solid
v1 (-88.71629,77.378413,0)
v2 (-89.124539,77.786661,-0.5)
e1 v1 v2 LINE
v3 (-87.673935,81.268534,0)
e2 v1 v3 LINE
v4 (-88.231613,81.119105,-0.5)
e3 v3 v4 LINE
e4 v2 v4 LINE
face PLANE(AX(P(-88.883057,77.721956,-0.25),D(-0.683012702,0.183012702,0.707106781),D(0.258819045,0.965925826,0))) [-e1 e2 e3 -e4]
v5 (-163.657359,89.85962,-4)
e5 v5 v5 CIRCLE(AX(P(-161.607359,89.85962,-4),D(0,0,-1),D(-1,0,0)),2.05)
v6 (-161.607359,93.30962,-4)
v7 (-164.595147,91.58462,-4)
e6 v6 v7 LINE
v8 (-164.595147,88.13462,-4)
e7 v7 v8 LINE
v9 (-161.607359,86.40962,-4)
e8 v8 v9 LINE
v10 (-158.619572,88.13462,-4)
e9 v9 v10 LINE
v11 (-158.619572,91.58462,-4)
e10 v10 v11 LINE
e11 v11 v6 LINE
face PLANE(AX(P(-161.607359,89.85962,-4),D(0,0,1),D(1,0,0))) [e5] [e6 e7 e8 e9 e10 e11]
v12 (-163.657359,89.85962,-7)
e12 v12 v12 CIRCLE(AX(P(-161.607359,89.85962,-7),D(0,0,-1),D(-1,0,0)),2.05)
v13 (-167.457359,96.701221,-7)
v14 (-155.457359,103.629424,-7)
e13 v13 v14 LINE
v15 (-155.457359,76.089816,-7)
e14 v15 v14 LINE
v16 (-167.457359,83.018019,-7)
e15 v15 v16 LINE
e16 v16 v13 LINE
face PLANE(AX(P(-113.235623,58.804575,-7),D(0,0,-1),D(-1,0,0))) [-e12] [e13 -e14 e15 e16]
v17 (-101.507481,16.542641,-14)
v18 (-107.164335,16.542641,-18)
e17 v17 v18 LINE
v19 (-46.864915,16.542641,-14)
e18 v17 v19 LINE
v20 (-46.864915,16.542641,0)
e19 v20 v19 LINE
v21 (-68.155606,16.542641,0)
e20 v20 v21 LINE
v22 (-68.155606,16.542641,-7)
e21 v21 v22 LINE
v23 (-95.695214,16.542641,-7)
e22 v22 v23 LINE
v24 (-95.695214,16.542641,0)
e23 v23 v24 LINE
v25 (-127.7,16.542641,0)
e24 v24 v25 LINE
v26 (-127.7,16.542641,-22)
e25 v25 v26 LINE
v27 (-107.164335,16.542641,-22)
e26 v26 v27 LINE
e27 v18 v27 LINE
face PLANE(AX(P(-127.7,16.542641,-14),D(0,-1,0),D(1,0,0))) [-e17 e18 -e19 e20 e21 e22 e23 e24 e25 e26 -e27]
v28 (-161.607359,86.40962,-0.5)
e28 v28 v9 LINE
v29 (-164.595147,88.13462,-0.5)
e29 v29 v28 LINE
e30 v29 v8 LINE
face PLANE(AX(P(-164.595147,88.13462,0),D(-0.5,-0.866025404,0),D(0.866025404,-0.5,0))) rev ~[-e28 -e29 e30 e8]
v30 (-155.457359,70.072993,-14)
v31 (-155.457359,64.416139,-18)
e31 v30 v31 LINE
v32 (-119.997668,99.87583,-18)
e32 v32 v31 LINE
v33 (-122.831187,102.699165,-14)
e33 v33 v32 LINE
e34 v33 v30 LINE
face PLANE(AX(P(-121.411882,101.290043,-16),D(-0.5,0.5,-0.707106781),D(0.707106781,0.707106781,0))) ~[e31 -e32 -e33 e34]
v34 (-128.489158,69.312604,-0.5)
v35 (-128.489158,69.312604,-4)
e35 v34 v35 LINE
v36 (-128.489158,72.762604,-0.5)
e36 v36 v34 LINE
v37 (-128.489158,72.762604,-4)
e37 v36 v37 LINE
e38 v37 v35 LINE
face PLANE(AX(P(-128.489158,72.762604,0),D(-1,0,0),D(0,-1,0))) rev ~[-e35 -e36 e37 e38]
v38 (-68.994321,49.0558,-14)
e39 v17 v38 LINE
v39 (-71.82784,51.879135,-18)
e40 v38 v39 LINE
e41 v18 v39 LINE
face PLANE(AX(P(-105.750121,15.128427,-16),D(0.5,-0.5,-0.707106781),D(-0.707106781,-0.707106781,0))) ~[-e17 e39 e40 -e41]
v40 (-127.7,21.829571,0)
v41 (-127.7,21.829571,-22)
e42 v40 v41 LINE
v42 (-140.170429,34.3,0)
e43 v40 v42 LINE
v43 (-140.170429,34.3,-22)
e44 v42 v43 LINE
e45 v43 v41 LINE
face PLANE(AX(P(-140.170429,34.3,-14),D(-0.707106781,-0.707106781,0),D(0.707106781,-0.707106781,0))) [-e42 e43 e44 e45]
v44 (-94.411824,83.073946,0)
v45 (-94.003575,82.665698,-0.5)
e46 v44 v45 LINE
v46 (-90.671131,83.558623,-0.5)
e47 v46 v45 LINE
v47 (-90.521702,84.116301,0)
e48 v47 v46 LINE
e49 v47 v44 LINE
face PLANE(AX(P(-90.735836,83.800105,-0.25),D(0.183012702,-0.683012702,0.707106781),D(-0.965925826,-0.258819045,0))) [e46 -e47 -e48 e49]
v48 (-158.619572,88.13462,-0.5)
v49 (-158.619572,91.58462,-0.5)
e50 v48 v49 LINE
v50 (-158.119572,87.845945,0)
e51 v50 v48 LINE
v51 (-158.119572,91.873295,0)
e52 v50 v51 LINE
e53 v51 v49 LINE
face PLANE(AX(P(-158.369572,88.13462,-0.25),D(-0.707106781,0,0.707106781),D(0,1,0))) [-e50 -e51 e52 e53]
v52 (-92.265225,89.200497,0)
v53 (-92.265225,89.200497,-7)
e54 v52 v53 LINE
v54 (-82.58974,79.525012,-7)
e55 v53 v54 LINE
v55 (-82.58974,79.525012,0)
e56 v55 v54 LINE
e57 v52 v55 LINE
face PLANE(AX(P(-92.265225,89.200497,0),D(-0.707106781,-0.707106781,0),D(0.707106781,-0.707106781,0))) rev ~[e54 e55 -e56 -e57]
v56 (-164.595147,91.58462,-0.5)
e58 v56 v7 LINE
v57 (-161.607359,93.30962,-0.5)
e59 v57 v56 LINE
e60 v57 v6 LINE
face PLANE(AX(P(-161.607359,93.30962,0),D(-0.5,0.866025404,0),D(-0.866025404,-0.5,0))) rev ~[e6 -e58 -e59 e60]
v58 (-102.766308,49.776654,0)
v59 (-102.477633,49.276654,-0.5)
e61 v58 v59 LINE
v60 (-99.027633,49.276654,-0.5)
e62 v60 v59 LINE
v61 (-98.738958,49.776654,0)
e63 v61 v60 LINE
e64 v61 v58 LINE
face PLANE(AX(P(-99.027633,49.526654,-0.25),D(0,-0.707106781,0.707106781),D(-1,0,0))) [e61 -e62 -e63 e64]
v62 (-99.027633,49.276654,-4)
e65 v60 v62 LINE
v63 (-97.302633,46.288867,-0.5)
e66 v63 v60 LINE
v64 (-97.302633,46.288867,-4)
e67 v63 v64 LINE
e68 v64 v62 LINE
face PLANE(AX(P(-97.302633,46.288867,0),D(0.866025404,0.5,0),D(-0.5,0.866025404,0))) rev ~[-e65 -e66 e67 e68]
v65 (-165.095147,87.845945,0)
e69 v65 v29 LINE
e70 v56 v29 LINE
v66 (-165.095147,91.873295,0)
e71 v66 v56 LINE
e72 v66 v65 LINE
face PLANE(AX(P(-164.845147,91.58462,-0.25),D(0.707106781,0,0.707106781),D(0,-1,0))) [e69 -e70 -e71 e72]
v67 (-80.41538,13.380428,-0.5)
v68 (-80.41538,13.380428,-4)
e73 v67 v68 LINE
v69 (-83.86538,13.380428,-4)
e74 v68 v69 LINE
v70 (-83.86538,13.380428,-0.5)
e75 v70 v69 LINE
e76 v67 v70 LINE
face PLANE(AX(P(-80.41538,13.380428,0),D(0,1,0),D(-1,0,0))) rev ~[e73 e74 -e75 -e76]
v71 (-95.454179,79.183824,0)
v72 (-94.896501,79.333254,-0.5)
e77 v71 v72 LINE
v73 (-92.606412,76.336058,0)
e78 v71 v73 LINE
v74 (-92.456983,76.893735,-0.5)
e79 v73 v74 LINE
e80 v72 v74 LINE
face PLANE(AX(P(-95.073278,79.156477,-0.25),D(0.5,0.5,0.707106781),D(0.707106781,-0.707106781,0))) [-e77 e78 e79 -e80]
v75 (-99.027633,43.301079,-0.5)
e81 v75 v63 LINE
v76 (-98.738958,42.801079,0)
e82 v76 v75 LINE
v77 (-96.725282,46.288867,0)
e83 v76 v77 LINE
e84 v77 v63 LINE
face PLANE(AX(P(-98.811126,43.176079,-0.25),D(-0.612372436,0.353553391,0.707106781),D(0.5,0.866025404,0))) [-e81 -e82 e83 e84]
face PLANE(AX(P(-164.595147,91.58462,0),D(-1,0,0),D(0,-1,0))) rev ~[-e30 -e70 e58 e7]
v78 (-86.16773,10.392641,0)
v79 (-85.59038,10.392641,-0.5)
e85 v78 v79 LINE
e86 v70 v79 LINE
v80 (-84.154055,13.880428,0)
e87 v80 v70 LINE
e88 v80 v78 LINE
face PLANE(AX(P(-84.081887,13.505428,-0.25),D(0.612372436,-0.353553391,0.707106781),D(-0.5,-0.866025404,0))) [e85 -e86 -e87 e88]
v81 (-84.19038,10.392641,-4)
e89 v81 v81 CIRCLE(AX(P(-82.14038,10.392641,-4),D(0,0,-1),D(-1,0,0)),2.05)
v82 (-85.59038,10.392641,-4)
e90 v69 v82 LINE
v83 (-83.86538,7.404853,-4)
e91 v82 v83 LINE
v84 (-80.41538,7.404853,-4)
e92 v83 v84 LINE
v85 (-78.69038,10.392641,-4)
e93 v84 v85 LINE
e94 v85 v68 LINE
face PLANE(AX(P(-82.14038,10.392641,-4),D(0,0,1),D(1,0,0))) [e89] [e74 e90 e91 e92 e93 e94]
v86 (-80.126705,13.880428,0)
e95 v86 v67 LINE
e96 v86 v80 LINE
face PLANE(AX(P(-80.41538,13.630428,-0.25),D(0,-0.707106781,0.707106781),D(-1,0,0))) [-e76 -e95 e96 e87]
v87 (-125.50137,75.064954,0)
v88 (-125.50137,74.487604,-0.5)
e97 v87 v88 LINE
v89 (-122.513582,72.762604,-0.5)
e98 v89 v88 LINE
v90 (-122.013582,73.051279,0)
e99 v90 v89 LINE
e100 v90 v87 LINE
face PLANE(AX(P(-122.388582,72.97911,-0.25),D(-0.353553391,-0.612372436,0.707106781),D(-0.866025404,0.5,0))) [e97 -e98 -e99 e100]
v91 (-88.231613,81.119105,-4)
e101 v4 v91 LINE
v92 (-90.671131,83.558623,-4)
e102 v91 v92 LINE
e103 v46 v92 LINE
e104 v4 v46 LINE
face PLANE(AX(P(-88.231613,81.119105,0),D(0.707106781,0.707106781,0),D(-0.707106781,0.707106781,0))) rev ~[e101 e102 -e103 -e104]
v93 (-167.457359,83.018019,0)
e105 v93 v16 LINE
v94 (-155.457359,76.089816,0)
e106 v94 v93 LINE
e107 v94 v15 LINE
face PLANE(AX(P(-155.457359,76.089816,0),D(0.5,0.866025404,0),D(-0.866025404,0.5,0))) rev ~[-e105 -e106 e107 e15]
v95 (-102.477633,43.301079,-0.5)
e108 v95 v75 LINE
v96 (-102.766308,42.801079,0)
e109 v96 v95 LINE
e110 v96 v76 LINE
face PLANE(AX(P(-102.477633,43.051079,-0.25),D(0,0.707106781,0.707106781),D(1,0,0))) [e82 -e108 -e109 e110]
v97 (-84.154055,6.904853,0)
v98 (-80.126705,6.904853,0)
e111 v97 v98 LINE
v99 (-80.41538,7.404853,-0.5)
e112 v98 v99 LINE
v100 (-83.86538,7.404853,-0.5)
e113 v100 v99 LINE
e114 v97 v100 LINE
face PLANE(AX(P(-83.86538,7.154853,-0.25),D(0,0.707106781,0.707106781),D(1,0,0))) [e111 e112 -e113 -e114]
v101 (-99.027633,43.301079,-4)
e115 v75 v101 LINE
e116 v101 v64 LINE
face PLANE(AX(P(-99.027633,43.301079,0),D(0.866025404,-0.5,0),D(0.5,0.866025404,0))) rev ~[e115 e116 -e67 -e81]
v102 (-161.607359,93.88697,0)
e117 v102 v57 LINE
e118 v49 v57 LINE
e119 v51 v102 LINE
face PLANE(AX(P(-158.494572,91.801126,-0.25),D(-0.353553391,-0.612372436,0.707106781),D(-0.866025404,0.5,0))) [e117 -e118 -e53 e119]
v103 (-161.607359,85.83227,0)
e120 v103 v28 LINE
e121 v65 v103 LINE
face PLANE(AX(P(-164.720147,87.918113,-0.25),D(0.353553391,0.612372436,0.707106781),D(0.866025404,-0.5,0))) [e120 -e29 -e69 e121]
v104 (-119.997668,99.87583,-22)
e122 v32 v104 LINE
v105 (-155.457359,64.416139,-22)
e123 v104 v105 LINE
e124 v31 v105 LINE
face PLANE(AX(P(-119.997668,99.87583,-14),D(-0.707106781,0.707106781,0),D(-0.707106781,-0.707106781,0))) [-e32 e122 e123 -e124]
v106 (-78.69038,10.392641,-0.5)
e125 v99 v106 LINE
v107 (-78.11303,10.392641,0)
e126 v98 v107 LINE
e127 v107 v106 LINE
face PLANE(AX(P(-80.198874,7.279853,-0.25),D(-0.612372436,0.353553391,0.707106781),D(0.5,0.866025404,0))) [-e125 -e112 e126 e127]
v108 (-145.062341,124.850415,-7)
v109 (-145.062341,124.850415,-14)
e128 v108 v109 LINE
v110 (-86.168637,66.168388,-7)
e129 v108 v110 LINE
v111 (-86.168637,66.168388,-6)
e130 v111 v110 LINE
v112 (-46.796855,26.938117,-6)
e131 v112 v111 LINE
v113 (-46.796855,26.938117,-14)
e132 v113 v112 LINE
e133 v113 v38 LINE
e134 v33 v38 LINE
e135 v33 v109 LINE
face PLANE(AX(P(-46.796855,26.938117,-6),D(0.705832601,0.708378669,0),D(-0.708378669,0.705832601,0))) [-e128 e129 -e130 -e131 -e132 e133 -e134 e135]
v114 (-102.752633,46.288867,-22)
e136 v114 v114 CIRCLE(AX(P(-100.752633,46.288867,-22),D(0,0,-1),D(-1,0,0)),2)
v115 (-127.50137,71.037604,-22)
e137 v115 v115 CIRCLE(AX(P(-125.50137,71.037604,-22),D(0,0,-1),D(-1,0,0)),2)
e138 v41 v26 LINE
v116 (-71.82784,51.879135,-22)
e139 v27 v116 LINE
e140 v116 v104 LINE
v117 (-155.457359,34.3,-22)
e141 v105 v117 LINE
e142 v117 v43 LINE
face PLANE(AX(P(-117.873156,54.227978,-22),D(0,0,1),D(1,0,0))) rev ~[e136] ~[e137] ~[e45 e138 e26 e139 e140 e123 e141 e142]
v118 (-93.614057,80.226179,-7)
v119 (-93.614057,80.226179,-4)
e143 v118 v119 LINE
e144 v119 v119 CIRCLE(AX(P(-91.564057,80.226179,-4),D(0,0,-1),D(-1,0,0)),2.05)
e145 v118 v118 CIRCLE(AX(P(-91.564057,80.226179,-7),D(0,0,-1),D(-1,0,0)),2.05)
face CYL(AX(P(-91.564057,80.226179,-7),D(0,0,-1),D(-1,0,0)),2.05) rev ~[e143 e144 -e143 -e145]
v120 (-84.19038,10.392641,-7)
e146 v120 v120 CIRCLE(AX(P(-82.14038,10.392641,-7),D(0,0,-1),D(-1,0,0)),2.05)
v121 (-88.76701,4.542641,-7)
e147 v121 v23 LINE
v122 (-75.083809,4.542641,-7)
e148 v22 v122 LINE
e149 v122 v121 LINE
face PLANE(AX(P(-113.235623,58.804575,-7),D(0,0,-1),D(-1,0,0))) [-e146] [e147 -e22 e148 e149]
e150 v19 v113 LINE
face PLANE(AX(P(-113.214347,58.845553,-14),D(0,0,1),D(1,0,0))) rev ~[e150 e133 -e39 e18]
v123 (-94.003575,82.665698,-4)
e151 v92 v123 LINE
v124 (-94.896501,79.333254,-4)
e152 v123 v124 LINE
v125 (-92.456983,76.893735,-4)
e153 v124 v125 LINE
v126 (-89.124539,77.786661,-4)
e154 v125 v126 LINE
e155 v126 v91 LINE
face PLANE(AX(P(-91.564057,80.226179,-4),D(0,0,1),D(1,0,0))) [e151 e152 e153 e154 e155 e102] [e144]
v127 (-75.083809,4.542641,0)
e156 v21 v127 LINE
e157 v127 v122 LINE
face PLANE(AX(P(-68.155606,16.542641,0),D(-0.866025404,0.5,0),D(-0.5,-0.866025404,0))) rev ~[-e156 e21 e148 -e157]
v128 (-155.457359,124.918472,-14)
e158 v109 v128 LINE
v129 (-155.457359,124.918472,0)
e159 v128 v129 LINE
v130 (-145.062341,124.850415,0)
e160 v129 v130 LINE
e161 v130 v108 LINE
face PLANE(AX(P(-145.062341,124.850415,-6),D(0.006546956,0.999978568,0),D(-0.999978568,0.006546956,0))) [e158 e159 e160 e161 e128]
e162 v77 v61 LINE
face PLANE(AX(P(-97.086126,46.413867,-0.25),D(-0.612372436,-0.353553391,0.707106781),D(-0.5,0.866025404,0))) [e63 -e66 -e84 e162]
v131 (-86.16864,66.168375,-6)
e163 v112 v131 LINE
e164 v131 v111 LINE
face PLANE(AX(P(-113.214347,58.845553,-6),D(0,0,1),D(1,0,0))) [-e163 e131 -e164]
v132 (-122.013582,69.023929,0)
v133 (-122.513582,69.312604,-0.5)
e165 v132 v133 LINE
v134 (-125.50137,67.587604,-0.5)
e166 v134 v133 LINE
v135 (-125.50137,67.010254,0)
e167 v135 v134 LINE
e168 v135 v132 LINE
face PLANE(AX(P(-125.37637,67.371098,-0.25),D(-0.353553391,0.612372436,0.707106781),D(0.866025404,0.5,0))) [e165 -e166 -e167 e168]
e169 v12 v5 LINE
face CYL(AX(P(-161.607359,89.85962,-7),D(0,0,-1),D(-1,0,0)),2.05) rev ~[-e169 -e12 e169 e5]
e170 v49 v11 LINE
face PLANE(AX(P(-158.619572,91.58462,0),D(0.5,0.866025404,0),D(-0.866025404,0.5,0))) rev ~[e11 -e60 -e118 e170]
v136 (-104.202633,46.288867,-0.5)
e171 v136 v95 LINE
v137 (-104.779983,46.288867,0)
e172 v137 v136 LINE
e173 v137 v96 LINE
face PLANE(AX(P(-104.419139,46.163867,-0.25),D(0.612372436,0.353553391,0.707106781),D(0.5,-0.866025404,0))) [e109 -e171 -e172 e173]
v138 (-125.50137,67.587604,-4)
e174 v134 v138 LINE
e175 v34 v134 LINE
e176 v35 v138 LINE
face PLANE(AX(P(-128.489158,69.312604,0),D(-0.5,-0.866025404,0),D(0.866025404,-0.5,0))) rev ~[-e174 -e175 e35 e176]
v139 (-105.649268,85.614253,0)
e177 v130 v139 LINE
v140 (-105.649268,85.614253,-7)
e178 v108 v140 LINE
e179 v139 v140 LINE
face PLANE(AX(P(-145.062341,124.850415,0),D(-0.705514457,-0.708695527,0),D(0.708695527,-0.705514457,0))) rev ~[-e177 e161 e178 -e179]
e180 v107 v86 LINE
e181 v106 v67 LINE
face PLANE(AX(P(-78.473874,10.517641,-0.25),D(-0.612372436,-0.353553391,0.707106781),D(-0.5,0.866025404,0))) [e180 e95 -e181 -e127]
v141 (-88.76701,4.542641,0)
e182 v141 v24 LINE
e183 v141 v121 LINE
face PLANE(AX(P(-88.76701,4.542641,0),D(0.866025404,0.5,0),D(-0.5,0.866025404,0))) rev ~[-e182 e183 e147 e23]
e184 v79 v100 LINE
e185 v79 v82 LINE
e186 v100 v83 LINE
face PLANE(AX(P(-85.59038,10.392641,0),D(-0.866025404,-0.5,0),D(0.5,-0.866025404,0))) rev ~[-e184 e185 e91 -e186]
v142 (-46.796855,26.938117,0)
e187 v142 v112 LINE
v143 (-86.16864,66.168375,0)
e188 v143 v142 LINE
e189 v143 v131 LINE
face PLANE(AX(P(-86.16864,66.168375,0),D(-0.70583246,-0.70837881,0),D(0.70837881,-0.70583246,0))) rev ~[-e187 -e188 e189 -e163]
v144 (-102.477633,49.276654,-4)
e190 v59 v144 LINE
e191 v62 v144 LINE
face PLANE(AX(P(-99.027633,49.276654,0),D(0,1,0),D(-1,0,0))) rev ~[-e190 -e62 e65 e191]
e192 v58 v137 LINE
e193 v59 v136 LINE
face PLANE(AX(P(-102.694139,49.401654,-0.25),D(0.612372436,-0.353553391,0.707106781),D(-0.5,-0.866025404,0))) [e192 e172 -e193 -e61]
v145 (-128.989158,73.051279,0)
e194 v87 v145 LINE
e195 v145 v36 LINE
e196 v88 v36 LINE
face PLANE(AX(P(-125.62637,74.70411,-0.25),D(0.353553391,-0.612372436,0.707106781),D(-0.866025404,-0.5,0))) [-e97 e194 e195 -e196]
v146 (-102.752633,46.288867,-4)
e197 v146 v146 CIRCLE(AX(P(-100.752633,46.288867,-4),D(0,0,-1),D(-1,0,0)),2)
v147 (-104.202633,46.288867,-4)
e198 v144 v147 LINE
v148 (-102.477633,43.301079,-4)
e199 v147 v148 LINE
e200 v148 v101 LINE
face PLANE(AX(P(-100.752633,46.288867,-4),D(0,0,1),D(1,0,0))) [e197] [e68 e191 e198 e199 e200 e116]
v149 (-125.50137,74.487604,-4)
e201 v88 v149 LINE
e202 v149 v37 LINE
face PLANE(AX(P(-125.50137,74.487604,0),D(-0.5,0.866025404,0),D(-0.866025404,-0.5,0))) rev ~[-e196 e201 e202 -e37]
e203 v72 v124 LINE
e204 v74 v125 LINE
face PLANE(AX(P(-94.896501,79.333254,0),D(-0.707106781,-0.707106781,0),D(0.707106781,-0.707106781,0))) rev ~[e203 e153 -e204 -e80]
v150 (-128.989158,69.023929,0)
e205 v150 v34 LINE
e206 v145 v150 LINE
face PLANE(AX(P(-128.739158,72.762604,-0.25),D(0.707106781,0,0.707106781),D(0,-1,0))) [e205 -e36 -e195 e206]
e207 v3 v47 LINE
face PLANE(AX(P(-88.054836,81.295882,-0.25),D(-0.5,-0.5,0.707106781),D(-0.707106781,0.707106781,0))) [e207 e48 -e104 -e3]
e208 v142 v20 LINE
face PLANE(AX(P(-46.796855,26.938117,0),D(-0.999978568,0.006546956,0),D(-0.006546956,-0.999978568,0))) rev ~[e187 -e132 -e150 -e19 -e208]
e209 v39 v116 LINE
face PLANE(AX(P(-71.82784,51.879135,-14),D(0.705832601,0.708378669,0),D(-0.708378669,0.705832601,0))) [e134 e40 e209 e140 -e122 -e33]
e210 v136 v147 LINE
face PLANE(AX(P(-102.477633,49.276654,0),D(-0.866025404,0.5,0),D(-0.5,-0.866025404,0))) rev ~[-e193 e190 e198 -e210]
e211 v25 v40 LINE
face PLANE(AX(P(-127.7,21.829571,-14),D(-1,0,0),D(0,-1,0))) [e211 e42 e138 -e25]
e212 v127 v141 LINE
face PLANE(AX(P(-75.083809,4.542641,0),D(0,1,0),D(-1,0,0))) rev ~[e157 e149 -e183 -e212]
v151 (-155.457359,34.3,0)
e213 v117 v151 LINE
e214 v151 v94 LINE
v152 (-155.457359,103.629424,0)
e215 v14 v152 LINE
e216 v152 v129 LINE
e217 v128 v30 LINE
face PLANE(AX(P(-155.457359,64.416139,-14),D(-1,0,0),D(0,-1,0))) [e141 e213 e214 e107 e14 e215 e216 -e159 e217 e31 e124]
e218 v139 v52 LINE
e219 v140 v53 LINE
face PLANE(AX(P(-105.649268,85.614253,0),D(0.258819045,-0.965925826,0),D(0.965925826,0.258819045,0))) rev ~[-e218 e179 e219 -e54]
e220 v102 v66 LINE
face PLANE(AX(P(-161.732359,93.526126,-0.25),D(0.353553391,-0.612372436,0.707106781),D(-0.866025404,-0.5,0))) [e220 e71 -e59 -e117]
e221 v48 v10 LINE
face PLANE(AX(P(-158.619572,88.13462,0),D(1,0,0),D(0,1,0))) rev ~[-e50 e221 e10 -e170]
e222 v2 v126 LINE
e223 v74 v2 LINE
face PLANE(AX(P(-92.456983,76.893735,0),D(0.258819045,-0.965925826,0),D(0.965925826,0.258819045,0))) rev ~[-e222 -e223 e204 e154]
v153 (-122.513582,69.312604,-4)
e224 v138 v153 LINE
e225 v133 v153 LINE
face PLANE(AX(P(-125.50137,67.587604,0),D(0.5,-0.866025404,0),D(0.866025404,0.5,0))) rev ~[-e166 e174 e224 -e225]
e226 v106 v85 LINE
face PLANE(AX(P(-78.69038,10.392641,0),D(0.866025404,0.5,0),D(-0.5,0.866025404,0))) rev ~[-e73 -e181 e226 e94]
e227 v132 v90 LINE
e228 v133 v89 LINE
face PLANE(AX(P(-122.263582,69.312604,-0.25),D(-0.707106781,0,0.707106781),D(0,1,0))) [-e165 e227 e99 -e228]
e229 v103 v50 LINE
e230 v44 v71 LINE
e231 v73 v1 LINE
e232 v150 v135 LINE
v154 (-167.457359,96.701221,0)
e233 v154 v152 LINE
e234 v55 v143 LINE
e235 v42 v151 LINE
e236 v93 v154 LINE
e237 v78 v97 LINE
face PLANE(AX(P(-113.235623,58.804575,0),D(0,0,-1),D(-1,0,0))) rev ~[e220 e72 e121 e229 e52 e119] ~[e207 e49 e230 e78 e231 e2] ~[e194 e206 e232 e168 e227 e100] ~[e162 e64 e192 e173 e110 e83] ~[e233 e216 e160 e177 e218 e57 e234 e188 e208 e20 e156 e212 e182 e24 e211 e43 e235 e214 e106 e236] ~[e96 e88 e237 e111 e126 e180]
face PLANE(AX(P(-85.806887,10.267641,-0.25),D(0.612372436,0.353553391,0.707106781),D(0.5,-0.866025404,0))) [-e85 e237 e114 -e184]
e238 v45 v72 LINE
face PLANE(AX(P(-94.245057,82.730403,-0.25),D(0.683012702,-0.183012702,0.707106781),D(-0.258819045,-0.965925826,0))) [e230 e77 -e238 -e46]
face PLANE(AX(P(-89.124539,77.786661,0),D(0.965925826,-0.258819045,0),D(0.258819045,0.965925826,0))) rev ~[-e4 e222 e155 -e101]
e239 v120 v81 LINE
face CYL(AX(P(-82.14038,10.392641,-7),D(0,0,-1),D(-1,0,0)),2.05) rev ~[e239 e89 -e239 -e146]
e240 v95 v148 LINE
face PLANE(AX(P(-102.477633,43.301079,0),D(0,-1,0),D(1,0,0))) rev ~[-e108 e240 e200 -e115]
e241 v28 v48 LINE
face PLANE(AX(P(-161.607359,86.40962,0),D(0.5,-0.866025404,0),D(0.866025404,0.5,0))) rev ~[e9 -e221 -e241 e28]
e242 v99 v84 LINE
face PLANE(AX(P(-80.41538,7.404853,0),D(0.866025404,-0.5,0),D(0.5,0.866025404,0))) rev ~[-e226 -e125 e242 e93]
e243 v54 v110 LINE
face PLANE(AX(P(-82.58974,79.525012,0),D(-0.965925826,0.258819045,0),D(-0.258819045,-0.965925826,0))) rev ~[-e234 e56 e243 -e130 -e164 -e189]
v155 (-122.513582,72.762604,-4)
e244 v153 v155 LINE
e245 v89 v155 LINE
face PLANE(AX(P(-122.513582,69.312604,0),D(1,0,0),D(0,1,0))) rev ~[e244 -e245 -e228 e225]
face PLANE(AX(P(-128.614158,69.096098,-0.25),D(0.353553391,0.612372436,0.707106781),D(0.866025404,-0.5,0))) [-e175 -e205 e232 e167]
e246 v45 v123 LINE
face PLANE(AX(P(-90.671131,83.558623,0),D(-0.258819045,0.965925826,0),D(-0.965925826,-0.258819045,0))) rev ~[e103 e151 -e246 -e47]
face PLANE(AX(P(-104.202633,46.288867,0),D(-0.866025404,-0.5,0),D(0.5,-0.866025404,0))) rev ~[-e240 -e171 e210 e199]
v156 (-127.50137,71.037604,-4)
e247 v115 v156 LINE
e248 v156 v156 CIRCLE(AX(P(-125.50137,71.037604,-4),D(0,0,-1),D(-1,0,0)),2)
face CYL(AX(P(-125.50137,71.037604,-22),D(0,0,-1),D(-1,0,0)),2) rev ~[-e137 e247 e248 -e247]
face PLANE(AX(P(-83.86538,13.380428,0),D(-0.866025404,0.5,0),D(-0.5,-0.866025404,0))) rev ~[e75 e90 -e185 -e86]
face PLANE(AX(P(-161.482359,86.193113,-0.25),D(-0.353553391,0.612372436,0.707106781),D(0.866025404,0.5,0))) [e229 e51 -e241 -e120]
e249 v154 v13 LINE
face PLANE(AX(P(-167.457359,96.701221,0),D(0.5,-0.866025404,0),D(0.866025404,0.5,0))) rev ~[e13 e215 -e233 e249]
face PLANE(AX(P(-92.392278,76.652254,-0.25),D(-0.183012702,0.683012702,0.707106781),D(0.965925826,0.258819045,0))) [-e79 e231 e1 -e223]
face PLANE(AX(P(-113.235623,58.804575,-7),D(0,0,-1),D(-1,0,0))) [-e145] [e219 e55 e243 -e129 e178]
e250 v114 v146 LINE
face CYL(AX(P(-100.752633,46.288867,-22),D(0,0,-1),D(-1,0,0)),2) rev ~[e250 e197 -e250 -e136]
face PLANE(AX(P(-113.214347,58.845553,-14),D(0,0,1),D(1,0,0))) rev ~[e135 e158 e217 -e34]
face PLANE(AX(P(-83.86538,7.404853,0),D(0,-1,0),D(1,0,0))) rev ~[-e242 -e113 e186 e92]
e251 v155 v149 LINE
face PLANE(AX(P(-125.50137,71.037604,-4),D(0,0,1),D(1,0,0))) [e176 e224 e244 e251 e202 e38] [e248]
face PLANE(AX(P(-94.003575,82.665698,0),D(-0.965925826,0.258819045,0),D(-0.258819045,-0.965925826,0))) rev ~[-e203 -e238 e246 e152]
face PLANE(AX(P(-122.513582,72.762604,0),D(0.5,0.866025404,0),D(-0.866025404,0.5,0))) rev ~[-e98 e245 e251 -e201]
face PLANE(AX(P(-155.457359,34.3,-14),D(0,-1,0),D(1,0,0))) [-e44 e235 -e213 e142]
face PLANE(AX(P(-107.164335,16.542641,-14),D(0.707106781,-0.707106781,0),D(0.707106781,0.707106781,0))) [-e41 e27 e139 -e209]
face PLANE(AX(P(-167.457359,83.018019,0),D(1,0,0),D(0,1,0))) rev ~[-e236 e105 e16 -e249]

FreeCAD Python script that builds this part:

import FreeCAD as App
import Part
import Sketcher

V = App.Vector
Q = App.Units.Quantity


def edges_at(feature, points):
    """Names of the edges that pass closest to the given points."""
    edges = feature.Shape.Edges
    near = lambda p: min(range(len(edges)), key=lambda i: edges[i].distToShape(Part.Vertex(*p))[0])
    return sorted({f"Edge{near(p) + 1}" for p in points})

doc = App.newDocument("Part")
params = doc.addObject("Spreadsheet::Sheet", "Params")
for row, (alias, value) in enumerate([
    ("pad1_length", "7 mm"),
    ("sketch2_diameter", "4.1 mm"),
    ("sketch3_width", "3.45 mm"),
    ("pocket2_length", "4 mm"),
    ("pad2_length", "7 mm"),
    ("pad2_length2", "1 mm"),
    ("pad3_length", "8 mm"),
    ("sketch6_diameter", "4 mm"),
    ("sketch7_width", "3.45 mm"),
    ("pocket4_length", "4 mm"),
    ("chamfer_size", "0.5 mm"),
    ("chamfer2_size", "0.5 mm"),
    ("chamfer3_size", "4 mm"),
], start=1):
    params.set(f"A{row}", alias)
    params.set(f"B{row}", "=" + value)
    params.setAlias(f"B{row}", alias)

body = doc.addObject("PartDesign::Body", "Body")

sketch1 = body.newObject("Sketcher::SketchObject", "Sketch")
sketch1.AttachmentSupport = (doc.getObject("XY_Plane"), [""])
sketch1.MapMode = "FlatFace"
sketch1.addGeometry(Part.LineSegment(V(-46.796855, 26.938117, 0), V(-86.16864, 66.168375, 0)), False)
sketch1.addGeometry(Part.LineSegment(V(-86.16864, 66.168375, 0), V(-82.58974, 79.525012, 0)), False)
sketch1.addGeometry(Part.LineSegment(V(-82.58974, 79.525012, 0), V(-92.265225, 89.200497, 0)), False)
sketch1.addGeometry(Part.LineSegment(V(-92.265225, 89.200497, 0), V(-105.649268, 85.614253, 0)), False)
sketch1.addGeometry(Part.LineSegment(V(-105.649268, 85.614253, 0), V(-145.062341, 124.850415, 0)), False)
sketch1.addGeometry(Part.LineSegment(V(-145.062341, 124.850415, 0), V(-155.457359, 124.918472, 0)), False)
sketch1.addGeometry(Part.LineSegment(V(-155.457359, 124.918472, 0), V(-155.457359, 103.629424, 0)), False)
sketch1.addGeometry(Part.LineSegment(V(-155.457359, 103.629424, 0), V(-167.457359, 96.701221, 0)), False)
sketch1.addGeometry(Part.LineSegment(V(-167.457359, 96.701221, 0), V(-167.457359, 83.018019, 0)), False)
sketch1.addGeometry(Part.LineSegment(V(-167.457359, 83.018019, 0), V(-155.457359, 76.089816, 0)), False)
sketch1.addGeometry(Part.LineSegment(V(-155.457359, 76.089816, 0), V(-155.457359, 34.3, 0)), False)
sketch1.addGeometry(Part.LineSegment(V(-155.457359, 34.3, 0), V(-140.170429, 34.3, 0)), False)
sketch1.addGeometry(Part.LineSegment(V(-140.170429, 34.3, 0), V(-127.7, 21.829571, 0)), False)
sketch1.addGeometry(Part.LineSegment(V(-127.7, 21.829571, 0), V(-127.7, 16.542641, 0)), False)
sketch1.addGeometry(Part.LineSegment(V(-127.7, 16.542641, 0), V(-95.695214, 16.542641, 0)), False)
sketch1.addGeometry(Part.LineSegment(V(-95.695214, 16.542641, 0), V(-88.76701, 4.542641, 0)), False)
sketch1.addGeometry(Part.LineSegment(V(-88.76701, 4.542641, 0), V(-75.083809, 4.542641, 0)), False)
sketch1.addGeometry(Part.LineSegment(V(-75.083809, 4.542641, 0), V(-68.155606, 16.542641, 0)), False)
sketch1.addGeometry(Part.LineSegment(V(-68.155606, 16.542641, 0), V(-46.864915, 16.542641, 0)), False)
sketch1.addGeometry(Part.LineSegment(V(-46.864915, 16.542641, 0), V(-46.796855, 26.938117, 0)), False)
sketch1.addConstraint(Sketcher.Constraint("Coincident", 0, 2, 1, 1))
sketch1.addConstraint(Sketcher.Constraint("Coincident", 1, 2, 2, 1))
sketch1.addConstraint(Sketcher.Constraint("Coincident", 2, 2, 3, 1))
sketch1.addConstraint(Sketcher.Constraint("Coincident", 3, 2, 4, 1))
sketch1.addConstraint(Sketcher.Constraint("Coincident", 4, 2, 5, 1))
sketch1.addConstraint(Sketcher.Constraint("Coincident", 5, 2, 6, 1))
sketch1.addConstraint(Sketcher.Constraint("Coincident", 6, 2, 7, 1))
sketch1.addConstraint(Sketcher.Constraint("Coincident", 7, 2, 8, 1))
sketch1.addConstraint(Sketcher.Constraint("Coincident", 8, 2, 9, 1))
sketch1.addConstraint(Sketcher.Constraint("Coincident", 9, 2, 10, 1))
sketch1.addConstraint(Sketcher.Constraint("Coincident", 10, 2, 11, 1))
sketch1.addConstraint(Sketcher.Constraint("Coincident", 11, 2, 12, 1))
sketch1.addConstraint(Sketcher.Constraint("Coincident", 12, 2, 13, 1))
sketch1.addConstraint(Sketcher.Constraint("Coincident", 13, 2, 14, 1))
sketch1.addConstraint(Sketcher.Constraint("Coincident", 14, 2, 15, 1))
sketch1.addConstraint(Sketcher.Constraint("Coincident", 15, 2, 16, 1))
sketch1.addConstraint(Sketcher.Constraint("Coincident", 16, 2, 17, 1))
sketch1.addConstraint(Sketcher.Constraint("Coincident", 17, 2, 18, 1))
sketch1.addConstraint(Sketcher.Constraint("Coincident", 18, 2, 19, 1))
sketch1.addConstraint(Sketcher.Constraint("Coincident", 19, 2, 0, 1))
sketch1.addConstraint(Sketcher.Constraint("Vertical", 6))
sketch1.addConstraint(Sketcher.Constraint("Vertical", 8))
sketch1.addConstraint(Sketcher.Constraint("Vertical", 10))
sketch1.addConstraint(Sketcher.Constraint("Horizontal", 11))
sketch1.addConstraint(Sketcher.Constraint("Vertical", 13))
sketch1.addConstraint(Sketcher.Constraint("Horizontal", 14))
sketch1.addConstraint(Sketcher.Constraint("Horizontal", 16))
sketch1.addConstraint(Sketcher.Constraint("Horizontal", 18))
sketch1.addConstraint(Sketcher.Constraint("Parallel", 2, 12))
sketch1.addConstraint(Sketcher.Constraint("Perpendicular", 7, 15))
sketch1.addConstraint(Sketcher.Constraint("Perpendicular", 9, 17))
sketch1.addConstraint(Sketcher.Constraint("Perpendicular", 5, 19))
sketch1.addConstraint(Sketcher.Constraint("Horizontal", 14, 2, 17, 2))
sketch1.addConstraint(Sketcher.Constraint("Vertical", 6, 2, 9, 2))
sketch1.addConstraint(Sketcher.Constraint("Equal", 16, 8))
sketch1.addConstraint(Sketcher.Constraint("Equal", 7, 9))
sketch1.addConstraint(Sketcher.Constraint("Equal", 9, 15))
sketch1.addConstraint(Sketcher.Constraint("Angle", 1, Q("75 deg")))
sketch1.addConstraint(Sketcher.Constraint("Angle", 2, Q("135 deg")))
sketch1.addConstraint(Sketcher.Constraint("Angle", 3, Q("-165 deg")))
sketch1.addConstraint(Sketcher.Constraint("Angle", 7, Q("-150 deg")))
sketch1.addConstraint(Sketcher.Constraint("DistanceX", 7, 2, 6, 2, Q("12 mm")))
sketch1.addConstraint(Sketcher.Constraint("DistanceY", -1, 1, 10, 2, Q("34.3 mm")))
sketch1.addConstraint(Sketcher.Constraint("DistanceX", 12, 2, -1, 1, Q("127.7 mm")))
sketch1.addConstraint(Sketcher.Constraint("DistanceX", 16, 1, 16, 2, Q("13.683201 mm")))
sketch1.addConstraint(Sketcher.Constraint("Distance", 2, Q("13.683201 mm")))
sketch1.addConstraint(Sketcher.Constraint("Distance", 19, Q("10.395699 mm")))
sketch1.addConstraint(Sketcher.Constraint("DistanceX", 11, 1, 11, 2, Q("15.28693 mm")))
sketch1.addConstraint(Sketcher.Constraint("DistanceX", 18, 1, 18, 2, Q("21.290691 mm")))
sketch1.addConstraint(Sketcher.Constraint("DistanceY", 6, 2, 6, 1, Q("21.289048 mm")))
sketch1.addConstraint(Sketcher.Constraint("DistanceY", 13, 2, 13, 1, Q("5.28693 mm")))
sketch1.addConstraint(Sketcher.Constraint("DistanceX", 0, 2, 1, 2, Q("3.5789 mm")))
sketch1.addConstraint(Sketcher.Constraint("DistanceX", 4, 2, 1, 2, Q("62.472601 mm")))
sketch1.addConstraint(Sketcher.Constraint("DistanceY", 9, 2, 4, 2, Q("48.760599 mm")))
sketch1.addConstraint(Sketcher.Constraint("Distance", 0, Q("55.580128 mm")))
sketch1.addConstraint(Sketcher.Constraint("Distance", 3, Q("13.856182 mm")))
sketch1.addConstraint(Sketcher.Constraint("Distance", 4, Q("55.613548 mm")))
sketch1.addConstraint(Sketcher.Constraint("Distance", 5, Q("10.395241 mm")))
sketch1.addConstraint(Sketcher.Constraint("Distance", 12, Q("17.63585 mm")))
sketch1.addConstraint(Sketcher.Constraint("DistanceX", 14, 1, 14, 2, Q("32.004786 mm")))
pad1 = body.newObject("PartDesign::Pad", "Pad")
pad1.Profile = sketch1
pad1.setExpression("Length", "Params.pad1_length")
pad1.Reversed = True

sketch2 = body.newObject("Sketcher::SketchObject", "Sketch001")
sketch2.AttachmentSupport = (doc.getObject("XY_Plane"), [""])
sketch2.MapMode = "FlatFace"
sketch2.AttachmentOffset = App.Placement(V(0, 0, -7), App.Rotation())
sketch2.addGeometry(Part.Circle(V(-82.14038, 10.392641, 0), V(0, 0, 1), 2.05), False)
sketch2.addGeometry(Part.Circle(V(-91.564057, 80.226179, 0), V(0, 0, 1), 2.05), False)
sketch2.addGeometry(Part.Circle(V(-161.607359, 89.85962, 0), V(0, 0, 1), 2.05), False)
sketch2.addConstraint(Sketcher.Constraint("Equal", 0, 1))
sketch2.addConstraint(Sketcher.Constraint("Equal", 1, 2))
sketch2.addConstraint(Sketcher.Constraint("Diameter", 0, Q("4.1 mm")))
sketch2.addConstraint(Sketcher.Constraint("DistanceX", 0, 3, -1, 1, Q("82.14038 mm")))
sketch2.addConstraint(Sketcher.Constraint("DistanceY", -1, 1, 0, 3, Q("10.392641 mm")))
sketch2.addConstraint(Sketcher.Constraint("DistanceY", -1, 1, 1, 3, Q("80.226179 mm")))
sketch2.addConstraint(Sketcher.Constraint("DistanceX", 2, 3, -1, 1, Q("161.607359 mm")))
sketch2.addConstraint(Sketcher.Constraint("DistanceY", -1, 1, 2, 3, Q("89.85962 mm")))
sketch2.addConstraint(Sketcher.Constraint("DistanceX", 1, 3, -1, 1, Q("91.564057 mm")))
sketch2.setExpression("Constraints[2]", "Params.sketch2_diameter")
pocket1 = body.newObject("PartDesign::Pocket", "Pocket")
pocket1.Profile = sketch2
pocket1.Type = "ThroughAll"
pocket1.Reversed = True

sketch3 = body.newObject("Sketcher::SketchObject", "Sketch002")
sketch3.AttachmentSupport = (doc.getObject("XY_Plane"), [""])
sketch3.MapMode = "FlatFace"
sketch3.addGeometry(Part.LineSegment(V(-158.619572, 88.13462, 0), V(-158.619572, 91.58462, 0)), False)
sketch3.addGeometry(Part.LineSegment(V(-158.619572, 91.58462, 0), V(-161.607359, 93.30962, 0)), False)
sketch3.addGeometry(Part.LineSegment(V(-161.607359, 93.30962, 0), V(-164.595147, 91.58462, 0)), False)
sketch3.addGeometry(Part.LineSegment(V(-164.595147, 91.58462, 0), V(-164.595147, 88.13462, 0)), False)
sketch3.addGeometry(Part.LineSegment(V(-164.595147, 88.13462, 0), V(-161.607359, 86.40962, 0)), False)
sketch3.addGeometry(Part.LineSegment(V(-161.607359, 86.40962, 0), V(-158.619572, 88.13462, 0)), False)
sketch3.addGeometry(Part.LineSegment(V(-88.231613, 81.119105, 0), V(-90.671131, 83.558623, 0)), False)
sketch3.addGeometry(Part.LineSegment(V(-90.671131, 83.558623, 0), V(-94.003575, 82.665698, 0)), False)
sketch3.addGeometry(Part.LineSegment(V(-94.003575, 82.665698, 0), V(-94.896501, 79.333254, 0)), False)
sketch3.addGeometry(Part.LineSegment(V(-94.896501, 79.333254, 0), V(-92.456983, 76.893735, 0)), False)
sketch3.addGeometry(Part.LineSegment(V(-92.456983, 76.893735, 0), V(-89.124539, 77.786661, 0)), False)
sketch3.addGeometry(Part.LineSegment(V(-89.124539, 77.786661, 0), V(-88.231613, 81.119105, 0)), False)
sketch3.addGeometry(Part.LineSegment(V(-80.41538, 7.404853, 0), V(-78.69038, 10.392641, 0)), False)
sketch3.addGeometry(Part.LineSegment(V(-78.69038, 10.392641, 0), V(-80.41538, 13.380428, 0)), False)
sketch3.addGeometry(Part.LineSegment(V(-80.41538, 13.380428, 0), V(-83.86538, 13.380428, 0)), False)
sketch3.addGeometry(Part.LineSegment(V(-83.86538, 13.380428, 0), V(-85.59038, 10.392641, 0)), False)
sketch3.addGeometry(Part.LineSegment(V(-85.59038, 10.392641, 0), V(-83.86538, 7.404853, 0)), False)
sketch3.addGeometry(Part.LineSegment(V(-83.86538, 7.404853, 0), V(-80.41538, 7.404853, 0)), False)
sketch3.addConstraint(Sketcher.Constraint("Coincident", 0, 2, 1, 1))
sketch3.addConstraint(Sketcher.Constraint("Coincident", 1, 2, 2, 1))
sketch3.addConstraint(Sketcher.Constraint("Coincident", 2, 2, 3, 1))
sketch3.addConstraint(Sketcher.Constraint("Coincident", 3, 2, 4, 1))
sketch3.addConstraint(Sketcher.Constraint("Coincident", 4, 2, 5, 1))
sketch3.addConstraint(Sketcher.Constraint("Coincident", 5, 2, 0, 1))
sketch3.addConstraint(Sketcher.Constraint("Coincident", 6, 2, 7, 1))
sketch3.addConstraint(Sketcher.Constraint("Coincident", 7, 2, 8, 1))
sketch3.addConstraint(Sketcher.Constraint("Coincident", 8, 2, 9, 1))
sketch3.addConstraint(Sketcher.Constraint("Coincident", 9, 2, 10, 1))
sketch3.addConstraint(Sketcher.Constraint("Coincident", 10, 2, 11, 1))
sketch3.addConstraint(Sketcher.Constraint("Coincident", 11, 2, 6, 1))
sketch3.addConstraint(Sketcher.Constraint("Coincident", 12, 2, 13, 1))
sketch3.addConstraint(Sketcher.Constraint("Coincident", 13, 2, 14, 1))
sketch3.addConstraint(Sketcher.Constraint("Coincident", 14, 2, 15, 1))
sketch3.addConstraint(Sketcher.Constraint("Coincident", 15, 2, 16, 1))
sketch3.addConstraint(Sketcher.Constraint("Coincident", 16, 2, 17, 1))
sketch3.addConstraint(Sketcher.Constraint("Coincident", 17, 2, 12, 1))
sketch3.addConstraint(Sketcher.Constraint("Vertical", 0))
sketch3.addConstraint(Sketcher.Constraint("Vertical", 3))
sketch3.addConstraint(Sketcher.Constraint("Horizontal", 14))
sketch3.addConstraint(Sketcher.Constraint("Horizontal", 17))
sketch3.addConstraint(Sketcher.Constraint("Parallel", 1, 4))
sketch3.addConstraint(Sketcher.Constraint("Parallel", 2, 5))
sketch3.addConstraint(Sketcher.Constraint("Parallel", 6, 9))
sketch3.addConstraint(Sketcher.Constraint("Parallel", 7, 10))
sketch3.addConstraint(Sketcher.Constraint("Parallel", 8, 11))
sketch3.addConstraint(Sketcher.Constraint("Perpendicular", 4, 12))
sketch3.addConstraint(Sketcher.Constraint("Perpendicular", 5, 13))
sketch3.addConstraint(Sketcher.Constraint("Parallel", 12, 15))
sketch3.addConstraint(Sketcher.Constraint("Parallel", 13, 16))
sketch3.addConstraint(Sketcher.Constraint("Horizontal", 0, 2, 2, 2))
sketch3.addConstraint(Sketcher.Constraint("Horizontal", 3, 2, 5, 2))
sketch3.addConstraint(Sketcher.Constraint("Horizontal", 12, 2, 15, 2))
sketch3.addConstraint(Sketcher.Constraint("Vertical", 1, 2, 4, 2))
sketch3.addConstraint(Sketcher.Constraint("Vertical", 14, 2, 16, 2))
sketch3.addConstraint(Sketcher.Constraint("Equal", 17, 0))
sketch3.addConstraint(Sketcher.Constraint("Equal", 5, 6))
sketch3.addConstraint(Sketcher.Constraint("Equal", 6, 7))
sketch3.addConstraint(Sketcher.Constraint("Equal", 7, 8))
sketch3.addConstraint(Sketcher.Constraint("Equal", 8, 9))
sketch3.addConstraint(Sketcher.Constraint("Equal", 11, 12))
sketch3.addConstraint(Sketcher.Constraint("Angle", 1, Q("150 deg")))
sketch3.addConstraint(Sketcher.Constraint("Angle", 6, Q("135 deg")))
sketch3.addConstraint(Sketcher.Constraint("Angle", 7, Q("-165 deg")))
sketch3.addConstraint(Sketcher.Constraint("Angle", 8, Q("-105 deg")))
sketch3.addConstraint(Sketcher.Constraint("DistanceX", 14, 2, 14, 1, Q("3.45 mm")))
sketch3.addConstraint(Sketcher.Constraint("DistanceY", 4, 2, 1, 2, Q("6.9 mm")))
sketch3.addConstraint(Sketcher.Constraint("DistanceX", 8, 2, -1, 1, Q("94.896501 mm")))
sketch3.addConstraint(Sketcher.Constraint("DistanceX", 0, 2, -1, 1, Q("158.619572 mm")))
sketch3.addConstraint(Sketcher.Constraint("DistanceY", -1, 1, 0, 2, Q("91.58462 mm")))
sketch3.addConstraint(Sketcher.Constraint("DistanceY", -1, 1, 10, 2, Q("77.786661 mm")))
sketch3.addConstraint(Sketcher.Constraint("DistanceX", 12, 2, -1, 1, Q("78.69038 mm")))
sketch3.addConstraint(Sketcher.Constraint("DistanceY", -1, 1, 12, 2, Q("10.392641 mm")))
sketch3.setExpression("Constraints[46]", "Params.sketch3_width")
pocket2 = body.newObject("PartDesign::Pocket", "Pocket001")
pocket2.Profile = sketch3
pocket2.setExpression("Length", "Params.pocket2_length")

sketch4 = body.newObject("Sketcher::SketchObject", "Sketch003")
sketch4.AttachmentSupport = (doc.getObject("XY_Plane"), [""])
sketch4.MapMode = "FlatFace"
sketch4.AttachmentOffset = App.Placement(V(0, 0, -7), App.Rotation())
sketch4.addGeometry(Part.LineSegment(V(-46.796855, 26.938117, 0), V(-46.864915, 16.542641, 0)), False)
sketch4.addGeometry(Part.LineSegment(V(-46.864915, 16.542641, 0), V(-127.7, 16.542641, 0)), False)
sketch4.addGeometry(Part.LineSegment(V(-127.7, 16.542641, 0), V(-127.7, 21.829571, 0)), False)
sketch4.addGeometry(Part.LineSegment(V(-127.7, 21.829571, 0), V(-140.170429, 34.3, 0)), False)
sketch4.addGeometry(Part.LineSegment(V(-140.170429, 34.3, 0), V(-155.457359, 34.3, 0)), False)
sketch4.addGeometry(Part.LineSegment(V(-155.457359, 34.3, 0), V(-155.457359, 124.918472, 0)), False)
sketch4.addGeometry(Part.LineSegment(V(-155.457359, 124.918472, 0), V(-145.062341, 124.850415, 0)), False)
sketch4.addGeometry(Part.LineSegment(V(-145.062341, 124.850415, 0), V(-46.796855, 26.938117, 0)), False)
sketch4.addConstraint(Sketcher.Constraint("Coincident", 0, 2, 1, 1))
sketch4.addConstraint(Sketcher.Constraint("Coincident", 1, 2, 2, 1))
sketch4.addConstraint(Sketcher.Constraint("Coincident", 2, 2, 3, 1))
sketch4.addConstraint(Sketcher.Constraint("Coincident", 3, 2, 4, 1))
sketch4.addConstraint(Sketcher.Constraint("Coincident", 4, 2, 5, 1))
sketch4.addConstraint(Sketcher.Constraint("Coincident", 5, 2, 6, 1))
sketch4.addConstraint(Sketcher.Constraint("Coincident", 6, 2, 7, 1))
sketch4.addConstraint(Sketcher.Constraint("Coincident", 7, 2, 0, 1))
sketch4.addConstraint(Sketcher.Constraint("Horizontal", 1))
sketch4.addConstraint(Sketcher.Constraint("Vertical", 2))
sketch4.addConstraint(Sketcher.Constraint("Horizontal", 4))
sketch4.addConstraint(Sketcher.Constraint("Vertical", 5))
sketch4.addConstraint(Sketcher.Constraint("Perpendicular", 0, 6))
sketch4.addConstraint(Sketcher.Constraint("Angle", 3, Q("135 deg")))
sketch4.addConstraint(Sketcher.Constraint("DistanceX", 1, 2, -1, 1, Q("127.7 mm")))
sketch4.addConstraint(Sketcher.Constraint("DistanceY", -1, 1, 3, 2, Q("34.3 mm")))
sketch4.addConstraint(Sketcher.Constraint("Distance", 0, Q("10.395699 mm")))
sketch4.addConstraint(Sketcher.Constraint("DistanceX", 4, 2, 4, 1, Q("15.28693 mm")))
sketch4.addConstraint(Sketcher.Constraint("DistanceY", 2, 1, 2, 2, Q("5.28693 mm")))
sketch4.addConstraint(Sketcher.Constraint("DistanceY", 2, 2, 5, 2, Q("103.088901 mm")))
sketch4.addConstraint(Sketcher.Constraint("Distance", 3, Q("17.63585 mm")))
sketch4.addConstraint(Sketcher.Constraint("Distance", 6, Q("10.395241 mm")))
sketch4.addConstraint(Sketcher.Constraint("DistanceX", 1, 2, 1, 1, Q("80.835085 mm")))
sketch4.addConstraint(Sketcher.Constraint("DistanceX", 6, 2, -1, 1, Q("145.062341 mm")))
pad2 = body.newObject("PartDesign::Pad", "Pad001")
pad2.Profile = sketch4
pad2.Type = "TwoLengths"
pad2.setExpression("Length", "Params.pad2_length")
pad2.setExpression("Length2", "Params.pad2_length2")
pad2.Reversed = True

sketch5 = body.newObject("Sketcher::SketchObject", "Sketch004")
sketch5.AttachmentSupport = (doc.getObject("XY_Plane"), [""])
sketch5.MapMode = "FlatFace"
sketch5.AttachmentOffset = App.Placement(V(0, 0, -14), App.Rotation())
sketch5.addGeometry(Part.LineSegment(V(-107.164335, 16.542641, 0), V(-127.7, 16.542641, 0)), False)
sketch5.addGeometry(Part.LineSegment(V(-127.7, 16.542641, 0), V(-127.7, 21.829571, 0)), False)
sketch5.addGeometry(Part.LineSegment(V(-127.7, 21.829571, 0), V(-140.170429, 34.3, 0)), False)
sketch5.addGeometry(Part.LineSegment(V(-140.170429, 34.3, 0), V(-155.457359, 34.3, 0)), False)
sketch5.addGeometry(Part.LineSegment(V(-155.457359, 34.3, 0), V(-155.457359, 64.416139, 0)), False)
sketch5.addGeometry(Part.LineSegment(V(-155.457359, 64.416139, 0), V(-119.997668, 99.87583, 0)), False)
sketch5.addGeometry(Part.LineSegment(V(-119.997668, 99.87583, 0), V(-71.82784, 51.879135, 0)), False)
sketch5.addGeometry(Part.LineSegment(V(-71.82784, 51.879135, 0), V(-107.164335, 16.542641, 0)), False)
sketch5.addConstraint(Sketcher.Constraint("Coincident", 0, 2, 1, 1))
sketch5.addConstraint(Sketcher.Constraint("Coincident", 1, 2, 2, 1))
sketch5.addConstraint(Sketcher.Constraint("Coincident", 2, 2, 3, 1))
sketch5.addConstraint(Sketcher.Constraint("Coincident", 3, 2, 4, 1))
sketch5.addConstraint(Sketcher.Constraint("Coincident", 4, 2, 5, 1))
sketch5.addConstraint(Sketcher.Constraint("Coincident", 5, 2, 6, 1))
sketch5.addConstraint(Sketcher.Constraint("Coincident", 6, 2, 7, 1))
sketch5.addConstraint(Sketcher.Constraint("Coincident", 7, 2, 0, 1))
sketch5.addConstraint(Sketcher.Constraint("Horizontal", 0))
sketch5.addConstraint(Sketcher.Constraint("Vertical", 1))
sketch5.addConstraint(Sketcher.Constraint("Horizontal", 3))
sketch5.addConstraint(Sketcher.Constraint("Vertical", 4))
sketch5.addConstraint(Sketcher.Constraint("Perpendicular", 2, 5))
sketch5.addConstraint(Sketcher.Constraint("Parallel", 5, 7))
sketch5.addConstraint(Sketcher.Constraint("Angle", 2, Q("135 deg")))
sketch5.addConstraint(Sketcher.Constraint("DistanceX", 0, 2, -1, 1, Q("127.7 mm")))
sketch5.addConstraint(Sketcher.Constraint("DistanceY", -1, 1, 2, 2, Q("34.3 mm")))
sketch5.addConstraint(Sketcher.Constraint("DistanceX", 3, 2, 3, 1, Q("15.28693 mm")))
sketch5.addConstraint(Sketcher.Constraint("DistanceY", 1, 1, 1, 2, Q("5.28693 mm")))
sketch5.addConstraint(Sketcher.Constraint("DistanceY", 4, 1, 4, 2, Q("30.116139 mm")))
sketch5.addConstraint(Sketcher.Constraint("Distance", 2, Q("17.63585 mm")))
sketch5.addConstraint(Sketcher.Constraint("Distance", 6, Q("68.00011 mm")))
sketch5.addConstraint(Sketcher.Constraint("Distance", 7, Q("49.97335 mm")))
sketch5.addConstraint(Sketcher.Constraint("DistanceX", 5, 2, -1, 1, Q("119.997668 mm")))
pad3 = body.newObject("PartDesign::Pad", "Pad002")
pad3.Profile = sketch5
pad3.setExpression("Length", "Params.pad3_length")
pad3.Reversed = True

sketch6 = body.newObject("Sketcher::SketchObject", "Sketch005")
sketch6.AttachmentSupport = (doc.getObject("XY_Plane"), [""])
sketch6.MapMode = "FlatFace"
sketch6.AttachmentOffset = App.Placement(V(0, 0, -22), App.Rotation())
sketch6.addGeometry(Part.Circle(V(-100.752633, 46.288867, 0), V(0, 0, 1), 2), False)
sketch6.addGeometry(Part.Circle(V(-125.50137, 71.037604, 0), V(0, 0, 1), 2), False)
sketch6.addConstraint(Sketcher.Constraint("Equal", 0, 1))
sketch6.addConstraint(Sketcher.Constraint("Diameter", 0, Q("4 mm")))
sketch6.addConstraint(Sketcher.Constraint("DistanceX", 1, 3, -1, 1, Q("125.50137 mm")))
sketch6.addConstraint(Sketcher.Constraint("DistanceX", 0, 3, -1, 1, Q("100.752633 mm")))
sketch6.addConstraint(Sketcher.Constraint("DistanceY", -1, 1, 0, 3, Q("46.288867 mm")))
sketch6.addConstraint(Sketcher.Constraint("DistanceY", -1, 1, 1, 3, Q("71.037604 mm")))
sketch6.setExpression("Constraints[1]", "Params.sketch6_diameter")
pocket3 = body.newObject("PartDesign::Pocket", "Pocket002")
pocket3.Profile = sketch6
pocket3.Type = "ThroughAll"
pocket3.Reversed = True

sketch7 = body.newObject("Sketcher::SketchObject", "Sketch006")
sketch7.AttachmentSupport = (doc.getObject("XY_Plane"), [""])
sketch7.MapMode = "FlatFace"
sketch7.addGeometry(Part.LineSegment(V(-125.50137, 74.487604, 0), V(-128.489158, 72.762604, 0)), False)
sketch7.addGeometry(Part.LineSegment(V(-128.489158, 72.762604, 0), V(-128.489158, 69.312604, 0)), False)
sketch7.addGeometry(Part.LineSegment(V(-128.489158, 69.312604, 0), V(-125.50137, 67.587604, 0)), False)
sketch7.addGeometry(Part.LineSegment(V(-125.50137, 67.587604, 0), V(-122.513582, 69.312604, 0)), False)
sketch7.addGeometry(Part.LineSegment(V(-122.513582, 69.312604, 0), V(-122.513582, 72.762604, 0)), False)
sketch7.addGeometry(Part.LineSegment(V(-122.513582, 72.762604, 0), V(-125.50137, 74.487604, 0)), False)
sketch7.addGeometry(Part.LineSegment(V(-104.202633, 46.288867, 0), V(-102.477633, 43.301079, 0)), False)
sketch7.addGeometry(Part.LineSegment(V(-102.477633, 43.301079, 0), V(-99.027633, 43.301079, 0)), False)
sketch7.addGeometry(Part.LineSegment(V(-99.027633, 43.301079, 0), V(-97.302633, 46.288867, 0)), False)
sketch7.addGeometry(Part.LineSegment(V(-97.302633, 46.288867, 0), V(-99.027633, 49.276654, 0)), False)
sketch7.addGeometry(Part.LineSegment(V(-99.027633, 49.276654, 0), V(-102.477633, 49.276654, 0)), False)
sketch7.addGeometry(Part.LineSegment(V(-102.477633, 49.276654, 0), V(-104.202633, 46.288867, 0)), False)
sketch7.addConstraint(Sketcher.Constraint("Coincident", 0, 2, 1, 1))
sketch7.addConstraint(Sketcher.Constraint("Coincident", 1, 2, 2, 1))
sketch7.addConstraint(Sketcher.Constraint("Coincident", 2, 2, 3, 1))
sketch7.addConstraint(Sketcher.Constraint("Coincident", 3, 2, 4, 1))
sketch7.addConstraint(Sketcher.Constraint("Coincident", 4, 2, 5, 1))
sketch7.addConstraint(Sketcher.Constraint("Coincident", 5, 2, 0, 1))
sketch7.addConstraint(Sketcher.Constraint("Coincident", 6, 2, 7, 1))
sketch7.addConstraint(Sketcher.Constraint("Coincident", 7, 2, 8, 1))
sketch7.addConstraint(Sketcher.Constraint("Coincident", 8, 2, 9, 1))
sketch7.addConstraint(Sketcher.Constraint("Coincident", 9, 2, 10, 1))
sketch7.addConstraint(Sketcher.Constraint("Coincident", 10, 2, 11, 1))
sketch7.addConstraint(Sketcher.Constraint("Coincident", 11, 2, 6, 1))
sketch7.addConstraint(Sketcher.Constraint("Vertical", 1))
sketch7.addConstraint(Sketcher.Constraint("Vertical", 4))
sketch7.addConstraint(Sketcher.Constraint("Horizontal", 7))
sketch7.addConstraint(Sketcher.Constraint("Horizontal", 10))
sketch7.addConstraint(Sketcher.Constraint("Parallel", 0, 3))
sketch7.addConstraint(Sketcher.Constraint("Parallel", 2, 5))
sketch7.addConstraint(Sketcher.Constraint("Perpendicular", 3, 6))
sketch7.addConstraint(Sketcher.Constraint("Perpendicular", 5, 8))
sketch7.addConstraint(Sketcher.Constraint("Parallel", 6, 9))
sketch7.addConstraint(Sketcher.Constraint("Parallel", 8, 11))
sketch7.addConstraint(Sketcher.Constraint("Horizontal", 1, 2, 3, 2))
sketch7.addConstraint(Sketcher.Constraint("Horizontal", 0, 2, 4, 2))
sketch7.addConstraint(Sketcher.Constraint("Horizontal", 8, 2, 11, 2))
sketch7.addConstraint(Sketcher.Constraint("Vertical", 2, 2, 5, 2))
sketch7.addConstraint(Sketcher.Constraint("Vertical", 7, 2, 9, 2))
sketch7.addConstraint(Sketcher.Constraint("Equal", 10, 1))
sketch7.addConstraint(Sketcher.Constraint("Equal", 5, 6))
sketch7.addConstraint(Sketcher.Constraint("Angle", 0, Q("-150 deg")))
sketch7.addConstraint(Sketcher.Constraint("DistanceX", 7, 1, 7, 2, Q("3.45 mm")))
sketch7.addConstraint(Sketcher.Constraint("DistanceY", 2, 2, 5, 2, Q("6.9 mm")))
sketch7.addConstraint(Sketcher.Constraint("DistanceX", 2, 2, -1, 1, Q("125.50137 mm")))
sketch7.addConstraint(Sketcher.Constraint("DistanceY", -1, 1, 6, 2, Q("43.301079 mm")))
sketch7.addConstraint(Sketcher.Constraint("DistanceX", 3, 2, 6, 2, Q("20.03595 mm")))
sketch7.addConstraint(Sketcher.Constraint("DistanceY", 9, 2, 3, 2, Q("20.03595 mm")))
sketch7.setExpression("Constraints[30]", "Params.sketch7_width")
pocket4 = body.newObject("PartDesign::Pocket", "Pocket003")
pocket4.Profile = sketch7
pocket4.setExpression("Length", "Params.pocket4_length")
doc.recompute()

chamfer = body.newObject("PartDesign::Chamfer", "Chamfer")
chamfer.Base = (pocket4, edges_at(pocket4, [
    (-160.113, 87.272, 0),
    (-158.62, 89.86, 0),
    (-160.113, 92.447, 0),
    (-163.101, 92.447, 0),
    (-164.595, 89.86, 0),
    (-163.101, 87.272, 0),
    (-88.678, 79.453, 0),
    (-89.451, 82.339, 0),
    (-92.337, 83.112, 0),
    (-94.45, 80.999, 0),
    (-93.677, 78.113, 0),
    (-90.791, 77.34, 0),
    (-82.14, 7.405, 0),
    (-79.553, 8.899, 0),
    (-79.553, 11.887, 0),
    (-82.14, 13.38, 0),
    (-84.728, 11.887, 0),
    (-84.728, 8.899, 0),
]))
chamfer.setExpression("Size", "Params.chamfer_size")
doc.recompute()

chamfer2 = body.newObject("PartDesign::Chamfer", "Chamfer001")
chamfer2.Base = (chamfer, edges_at(chamfer, [
    (-124.007, 73.625, 0),
    (-126.995, 73.625, 0),
    (-128.489, 71.038, 0),
    (-126.995, 68.45, 0),
    (-124.007, 68.45, 0),
    (-122.514, 71.038, 0),
    (-103.34, 47.783, 0),
    (-103.34, 44.795, 0),
    (-100.753, 43.301, 0),
    (-98.165, 44.795, 0),
    (-98.165, 47.783, 0),
    (-100.753, 49.277, 0),
]))
chamfer2.setExpression("Size", "Params.chamfer2_size")
doc.recompute()

chamfer3 = body.newObject("PartDesign::Chamfer", "Chamfer002")
chamfer3.Base = (chamfer2, edges_at(chamfer2, [(-137.728, 82.146, -14), (-89.496, 34.211, -14)]))
chamfer3.setExpression("Size", "Params.chamfer3_size")

doc.recompute()
